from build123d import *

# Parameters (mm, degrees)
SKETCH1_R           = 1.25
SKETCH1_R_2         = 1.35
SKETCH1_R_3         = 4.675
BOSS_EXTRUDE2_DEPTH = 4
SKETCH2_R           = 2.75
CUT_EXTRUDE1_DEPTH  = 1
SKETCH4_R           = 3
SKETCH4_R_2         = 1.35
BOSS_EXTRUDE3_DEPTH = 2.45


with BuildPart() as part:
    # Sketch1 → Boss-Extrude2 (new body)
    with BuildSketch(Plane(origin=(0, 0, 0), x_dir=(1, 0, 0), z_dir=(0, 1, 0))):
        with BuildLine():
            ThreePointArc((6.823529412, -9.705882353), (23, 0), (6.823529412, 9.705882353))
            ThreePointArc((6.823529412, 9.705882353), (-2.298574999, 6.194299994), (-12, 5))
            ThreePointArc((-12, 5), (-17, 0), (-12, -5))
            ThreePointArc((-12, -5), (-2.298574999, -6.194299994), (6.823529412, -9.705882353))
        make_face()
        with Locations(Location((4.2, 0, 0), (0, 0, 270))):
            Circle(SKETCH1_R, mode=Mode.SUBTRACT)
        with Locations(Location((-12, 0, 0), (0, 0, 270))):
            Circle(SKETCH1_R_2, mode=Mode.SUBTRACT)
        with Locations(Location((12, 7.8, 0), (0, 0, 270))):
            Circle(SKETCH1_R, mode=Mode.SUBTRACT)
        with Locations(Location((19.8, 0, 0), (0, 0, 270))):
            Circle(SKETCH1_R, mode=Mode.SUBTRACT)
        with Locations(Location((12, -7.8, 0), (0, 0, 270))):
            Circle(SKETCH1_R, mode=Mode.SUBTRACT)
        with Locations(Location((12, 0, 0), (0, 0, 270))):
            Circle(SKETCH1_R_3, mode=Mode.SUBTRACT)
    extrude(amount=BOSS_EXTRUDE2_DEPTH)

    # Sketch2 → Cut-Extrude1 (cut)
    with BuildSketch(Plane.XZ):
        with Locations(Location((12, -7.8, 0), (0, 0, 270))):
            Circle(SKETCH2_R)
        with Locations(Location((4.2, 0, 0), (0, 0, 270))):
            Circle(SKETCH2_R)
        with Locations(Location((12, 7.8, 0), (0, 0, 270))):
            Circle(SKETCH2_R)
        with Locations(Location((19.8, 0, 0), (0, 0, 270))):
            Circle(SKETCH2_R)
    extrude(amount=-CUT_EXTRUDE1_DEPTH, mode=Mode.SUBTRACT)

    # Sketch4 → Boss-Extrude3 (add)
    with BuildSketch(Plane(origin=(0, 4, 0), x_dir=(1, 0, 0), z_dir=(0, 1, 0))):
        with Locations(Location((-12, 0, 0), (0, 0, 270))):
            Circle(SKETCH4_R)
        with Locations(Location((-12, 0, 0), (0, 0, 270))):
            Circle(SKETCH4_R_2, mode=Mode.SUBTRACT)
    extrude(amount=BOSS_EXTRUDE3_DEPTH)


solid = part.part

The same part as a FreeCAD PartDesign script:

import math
import FreeCAD as App
import Part
import Sketcher

V = App.Vector
Q = App.Units.Quantity

doc = App.newDocument("Part")
body = doc.addObject("PartDesign::Body", "Body")

sketch1 = body.newObject("Sketcher::SketchObject", "Sketch")
sketch1.AttachmentSupport = (doc.getObject("XZ_Plane"), [""])
sketch1.MapMode = "FlatFace"
sketch1.addGeometry([
    Part.ArcOfCircle(Part.Circle(V(12, 0, 0), V(0, 0, 1), 11), math.radians(-118), math.radians(118)),
    Part.ArcOfCircle(Part.Circle(V(-12, -45, 0), V(0, 0, 1), 40), math.radians(62), math.radians(90)),
    Part.ArcOfCircle(Part.Circle(V(-12, 0, 0), V(0, 0, 1), 5), math.radians(90), math.radians(270)),
    Part.ArcOfCircle(Part.Circle(V(-12, 45, 0), V(0, 0, 1), 40), math.radians(-90), math.radians(-62)),
    Part.Circle(V(12, 7.8, 0), V(0, 0, 1), 1.2),
    Part.Circle(V(-12, 0, 0), V(0, 0, 1), 1.4),
    Part.Circle(V(4.2, 0, 0), V(0, 0, 1), 1.2),
    Part.Circle(V(12, 0, 0), V(0, 0, 1), 4.7),
    Part.Circle(V(19.8, 0, 0), V(0, 0, 1), 1.2),
    Part.Circle(V(12, -7.8, 0), V(0, 0, 1), 1.2),
], False)
sketch1.addConstraint([
    Sketcher.Constraint("Tangent", 0, 1, 1, 1),
    Sketcher.Constraint("Tangent", 1, 2, 2, 2),
    Sketcher.Constraint("Tangent", 2, 1, 3, 1),
    Sketcher.Constraint("Tangent", 3, 2, 0, 2),
    Sketcher.Constraint("Coincident", 5, 3, 2, 3),
    Sketcher.Constraint("Coincident", 7, 3, 0, 3),
    Sketcher.Constraint("Equal", 1, 3),
    Sketcher.Constraint("Equal", 4, 6),
    Sketcher.Constraint("Equal", 6, 8),
    Sketcher.Constraint("Equal", 8, 9),
    Sketcher.Constraint("Symmetric", 0, 3, 2, 3, -1, 1),
    Sketcher.Constraint("Symmetric", 4, 3, 9, 3, -1),
    Sketcher.Constraint("PointOnObject", 0, 3, -1),
    Sketcher.Constraint("PointOnObject", 6, 3, -1),
    Sketcher.Constraint("PointOnObject", 8, 3, -1),
    Sketcher.Constraint("Vertical", 1, 3, 2, 3),
    Sketcher.Constraint("Vertical", 0, 3, 4, 3),
    Sketcher.Constraint("Radius", 0, Q("11 mm")),
    Sketcher.Constraint("Radius", 1, Q("40 mm")),
    Sketcher.Constraint("Radius", 2, Q("5 mm")),
    Sketcher.Constraint("Diameter", 4, Q("2.5 mm")),
    Sketcher.Constraint("Diameter", 5, Q("2.7 mm")),
    Sketcher.Constraint("Diameter", 7, Q("9.35 mm")),
    Sketcher.Constraint("DistanceY", -1, 1, 4, 3, Q("7.8 mm")),
    Sketcher.Constraint("DistanceX", -1, 1, 6, 3, Q("4.2 mm")),
    Sketcher.Constraint("DistanceX", -1, 1, 8, 3, Q("19.8 mm")),
])
pad1 = body.newObject("PartDesign::Pad", "Pad")
pad1.Profile = sketch1
pad1.Length = 4
pad1.Reversed = True

sketch2 = body.newObject("Sketcher::SketchObject", "Sketch001")
sketch2.AttachmentSupport = (doc.getObject("XZ_Plane"), [""])
sketch2.MapMode = "FlatFace"
sketch2.addGeometry([
    Part.Circle(V(12, -7.8, 0), V(0, 0, 1), 2.8),
    Part.Circle(V(4.2, 0, 0), V(0, 0, 1), 2.8),
    Part.Circle(V(12, 7.8, 0), V(0, 0, 1), 2.8),
    Part.Circle(V(19.8, 0, 0), V(0, 0, 1), 2.8),
], False)
sketch2.addConstraint([
    Sketcher.Constraint("Equal", 0, 1),
    Sketcher.Constraint("Equal", 1, 2),
    Sketcher.Constraint("Equal", 2, 3),
    Sketcher.Constraint("Symmetric", 0, 3, 2, 3, -1),
    Sketcher.Constraint("PointOnObject", 1, 3, -1),
    Sketcher.Constraint("PointOnObject", 3, 3, -1),
    Sketcher.Constraint("Diameter", 0, Q("5.5 mm")),
    Sketcher.Constraint("DistanceX", -1, 1, 0, 3, Q("12 mm")),
    Sketcher.Constraint("DistanceY", 0, 3, -1, 1, Q("7.8 mm")),
    Sketcher.Constraint("DistanceX", -1, 1, 1, 3, Q("4.2 mm")),
    Sketcher.Constraint("DistanceX", -1, 1, 3, 3, Q("19.8 mm")),
])
pocket1 = body.newObject("PartDesign::Pocket", "Pocket")
pocket1.Profile = sketch2
pocket1.Length = 1

sketch3 = body.newObject("Sketcher::SketchObject", "Sketch002")
sketch3.AttachmentSupport = (doc.getObject("XZ_Plane"), [""])
sketch3.MapMode = "FlatFace"
sketch3.AttachmentOffset = App.Placement(V(0, 0, -4), App.Rotation())
sketch3.addGeometry([
    Part.Circle(V(-12, 0, 0), V(0, 0, 1), 3),
    Part.Circle(V(-12, 0, 0), V(0, 0, 1), 1.4),
], False)
sketch3.addConstraint([
    Sketcher.Constraint("Coincident", 1, 3, 0, 3),
    Sketcher.Constraint("PointOnObject", 0, 3, -1),
    Sketcher.Constraint("Diameter", 0, Q("6 mm")),
    Sketcher.Constraint("Diameter", 1, Q("2.7 mm")),
    Sketcher.Constraint("DistanceX", 0, 3, -1, 1, Q("12 mm")),
])
pad2 = body.newObject("PartDesign::Pad", "Pad001")
pad2.Profile = sketch3
pad2.Length = 2.45
pad2.Reversed = True

doc.recompute()
